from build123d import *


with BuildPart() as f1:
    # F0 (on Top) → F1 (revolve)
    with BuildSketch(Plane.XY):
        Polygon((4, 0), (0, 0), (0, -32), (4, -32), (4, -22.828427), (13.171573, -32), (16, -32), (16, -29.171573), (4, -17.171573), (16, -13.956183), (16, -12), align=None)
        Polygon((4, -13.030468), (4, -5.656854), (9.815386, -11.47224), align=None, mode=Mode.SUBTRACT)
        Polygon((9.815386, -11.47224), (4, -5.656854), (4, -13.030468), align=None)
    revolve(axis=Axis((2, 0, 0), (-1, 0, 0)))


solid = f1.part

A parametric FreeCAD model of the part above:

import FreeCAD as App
import Part
import Sketcher
from FreeCAD import Vector
Q = App.Units.Quantity

doc = App.newDocument("Part")
body = doc.addObject("PartDesign::Body", "Body")

sketch1 = doc.addObject("Sketcher::SketchObject", "Sketch")
body.addObject(sketch1)
sketch1.AttachmentSupport = (doc.XY_Plane, [""])
sketch1.MapMode = "FlatFace"
sketch1.addGeometry([
    Part.LineSegment(Vector(4, 0, 0), Vector(0, 0, 0)),
    Part.LineSegment(Vector(0, 0, 0), Vector(0, -32, 0)),
    Part.LineSegment(Vector(0, -32, 0), Vector(4, -32, 0)),
    Part.LineSegment(Vector(4, -32, 0), Vector(4, -22.8, 0)),
    Part.LineSegment(Vector(4, -22.8, 0), Vector(13.2, -32, 0)),
    Part.LineSegment(Vector(13.2, -32, 0), Vector(16, -32, 0)),
    Part.LineSegment(Vector(16, -32, 0), Vector(16, -29.2, 0)),
    Part.LineSegment(Vector(16, -29.2, 0), Vector(4, -17.2, 0)),
    Part.LineSegment(Vector(4, -17.2, 0), Vector(16, -14, 0)),
    Part.LineSegment(Vector(16, -14, 0), Vector(16, -12, 0)),
    Part.LineSegment(Vector(16, -12, 0), Vector(4, 0, 0)),
], False)
sketch1.addConstraint([
    Sketcher.Constraint("Coincident", 0, 2, 1, 1),
    Sketcher.Constraint("Coincident", 1, 2, 2, 1),
    Sketcher.Constraint("Coincident", 2, 2, 3, 1),
    Sketcher.Constraint("Coincident", 3, 2, 4, 1),
    Sketcher.Constraint("Coincident", 4, 2, 5, 1),
    Sketcher.Constraint("Coincident", 5, 2, 6, 1),
    Sketcher.Constraint("Coincident", 6, 2, 7, 1),
    Sketcher.Constraint("Coincident", 7, 2, 8, 1),
    Sketcher.Constraint("Coincident", 8, 2, 9, 1),
    Sketcher.Constraint("Coincident", 9, 2, 10, 1),
    Sketcher.Constraint("Coincident", 10, 2, 0, 1),
    Sketcher.Constraint("Horizontal", 0),
    Sketcher.Constraint("Vertical", 1),
    Sketcher.Constraint("Horizontal", 2),
    Sketcher.Constraint("Vertical", 3),
    Sketcher.Constraint("Horizontal", 5),
    Sketcher.Constraint("Vertical", 6),
    Sketcher.Constraint("Vertical", 9),
    Sketcher.Constraint("Coincident", 0, 2, -1, 1),
    Sketcher.Constraint("Parallel", 4, 7),
    Sketcher.Constraint("Parallel", 7, 10),
    Sketcher.Constraint("Horizontal", 2, 2, 4, 2),
    Sketcher.Constraint("Vertical", 3, 2, 7, 2),
    Sketcher.Constraint("Vertical", 6, 2, 8, 2),
    Sketcher.Constraint("Vertical", 7, 2, 10, 2),
    Sketcher.Constraint("Equal", 5, 6),
    Sketcher.Constraint("DistanceX", 0, 2, 0, 1, Q("4 mm")),
    Sketcher.Constraint("DistanceY", 1, 2, 1, 1, Q("32 mm")),
    Sketcher.Constraint("Angle", 4, Q("-45 deg")),
    Sketcher.Constraint("Angle", 8, Q("14.999999 deg")),
    Sketcher.Constraint("DistanceX", -1, 1, 5, 2, Q("16 mm")),
    Sketcher.Constraint("DistanceX", 5, 1, 5, 2, Q("2.828427 mm")),
])
revolution = doc.addObject("PartDesign::Revolution", "Revolution")
body.addObject(revolution)
revolution.Profile = sketch1
revolution.ReferenceAxis = (sketch1, ["H_Axis"])
revolution.Angle = 360

doc.recompute()
